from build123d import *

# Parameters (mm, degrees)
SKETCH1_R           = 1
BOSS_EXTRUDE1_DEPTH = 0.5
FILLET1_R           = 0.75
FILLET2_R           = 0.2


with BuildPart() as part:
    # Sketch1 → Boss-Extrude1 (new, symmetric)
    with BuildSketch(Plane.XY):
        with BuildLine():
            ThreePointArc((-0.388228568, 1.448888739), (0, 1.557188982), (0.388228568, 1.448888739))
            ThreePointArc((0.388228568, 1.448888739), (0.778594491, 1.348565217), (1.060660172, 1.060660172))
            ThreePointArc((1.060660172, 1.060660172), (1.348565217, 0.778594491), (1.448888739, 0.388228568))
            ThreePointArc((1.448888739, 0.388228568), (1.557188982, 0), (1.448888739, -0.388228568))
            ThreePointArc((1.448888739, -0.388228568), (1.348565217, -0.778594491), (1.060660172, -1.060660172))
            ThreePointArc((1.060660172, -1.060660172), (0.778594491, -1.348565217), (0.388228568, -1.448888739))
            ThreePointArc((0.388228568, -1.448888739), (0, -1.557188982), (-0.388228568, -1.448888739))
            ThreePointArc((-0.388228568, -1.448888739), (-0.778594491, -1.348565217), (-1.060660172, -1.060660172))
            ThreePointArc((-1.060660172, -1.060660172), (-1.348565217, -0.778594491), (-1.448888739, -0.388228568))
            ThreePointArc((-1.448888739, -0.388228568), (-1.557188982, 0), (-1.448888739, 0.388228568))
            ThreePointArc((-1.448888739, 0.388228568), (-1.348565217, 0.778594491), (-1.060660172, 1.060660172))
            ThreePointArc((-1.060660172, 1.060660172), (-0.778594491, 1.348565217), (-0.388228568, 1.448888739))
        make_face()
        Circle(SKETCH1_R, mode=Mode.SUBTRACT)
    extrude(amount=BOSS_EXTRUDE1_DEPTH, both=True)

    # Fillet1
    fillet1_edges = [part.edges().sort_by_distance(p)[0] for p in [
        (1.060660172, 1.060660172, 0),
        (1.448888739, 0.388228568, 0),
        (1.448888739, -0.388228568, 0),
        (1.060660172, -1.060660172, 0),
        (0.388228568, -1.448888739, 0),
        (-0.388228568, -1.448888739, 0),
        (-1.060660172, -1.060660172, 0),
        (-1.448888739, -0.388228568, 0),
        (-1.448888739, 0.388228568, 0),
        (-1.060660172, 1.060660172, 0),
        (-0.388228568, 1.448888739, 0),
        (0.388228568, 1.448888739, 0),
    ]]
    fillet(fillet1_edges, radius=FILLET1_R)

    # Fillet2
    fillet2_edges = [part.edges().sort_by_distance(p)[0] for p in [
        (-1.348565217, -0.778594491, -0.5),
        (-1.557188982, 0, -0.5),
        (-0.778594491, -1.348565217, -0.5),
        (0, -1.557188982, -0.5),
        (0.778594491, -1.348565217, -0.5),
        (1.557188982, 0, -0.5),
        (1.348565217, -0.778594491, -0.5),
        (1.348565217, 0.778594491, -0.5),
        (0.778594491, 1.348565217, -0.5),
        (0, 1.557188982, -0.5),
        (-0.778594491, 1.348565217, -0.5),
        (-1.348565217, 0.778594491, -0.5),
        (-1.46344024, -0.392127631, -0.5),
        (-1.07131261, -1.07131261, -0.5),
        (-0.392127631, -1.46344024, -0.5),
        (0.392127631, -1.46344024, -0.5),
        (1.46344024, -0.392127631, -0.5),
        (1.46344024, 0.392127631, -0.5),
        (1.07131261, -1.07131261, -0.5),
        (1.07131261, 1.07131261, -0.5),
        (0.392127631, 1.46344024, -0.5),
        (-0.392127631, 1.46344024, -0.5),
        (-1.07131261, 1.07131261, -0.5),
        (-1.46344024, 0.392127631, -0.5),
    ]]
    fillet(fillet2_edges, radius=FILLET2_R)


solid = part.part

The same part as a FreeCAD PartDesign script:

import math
import FreeCAD as App
import Part
import Sketcher
from FreeCAD import Vector
Q = App.Units.Quantity


def edges_at(feature, points):
    """Names of the edges that pass closest to the given points."""
    edges = feature.Shape.Edges
    near = lambda p: min(range(len(edges)), key=lambda i: edges[i].distToShape(Part.Vertex(*p))[0])
    return sorted({f"Edge{near(p) + 1}" for p in points})

doc = App.newDocument("Part")
body = doc.addObject("PartDesign::Body", "Body")

sketch1 = doc.addObject("Sketcher::SketchObject", "Sketch")
body.addObject(sketch1)
sketch1.AttachmentSupport = (doc.XY_Plane, [""])
sketch1.MapMode = "FlatFace"
sketch1.addGeometry(Part.ArcOfCircle(Part.Circle(Vector(0, 0.8, 0), Vector(0, 0, 1), 0.7), math.radians(59), math.radians(121)), False)
sketch1.addGeometry(Part.ArcOfCircle(Part.Circle(Vector(-0.4, 0.7, 0), Vector(0, 0, 1), 0.7), math.radians(89), math.radians(151)), False)
sketch1.addGeometry(Part.ArcOfCircle(Part.Circle(Vector(-0.7, 0.4, 0), Vector(0, 0, 1), 0.7), math.radians(119), math.radians(181)), False)
sketch1.addGeometry(Part.ArcOfCircle(Part.Circle(Vector(-0.8, 0, 0), Vector(0, 0, 1), 0.7), math.radians(149), math.radians(211)), False)
sketch1.addGeometry(Part.ArcOfCircle(Part.Circle(Vector(-0.7, -0.4, 0), Vector(0, 0, 1), 0.7), math.radians(179), math.radians(241)), False)
sketch1.addGeometry(Part.ArcOfCircle(Part.Circle(Vector(-0.4, -0.7, 0), Vector(0, 0, 1), 0.7), math.radians(-151), math.radians(-89)), False)
sketch1.addGeometry(Part.ArcOfCircle(Part.Circle(Vector(0, -0.8, 0), Vector(0, 0, 1), 0.7), math.radians(-121), math.radians(-59)), False)
sketch1.addGeometry(Part.ArcOfCircle(Part.Circle(Vector(0.4, -0.7, 0), Vector(0, 0, 1), 0.7), math.radians(-91), math.radians(-29)), False)
sketch1.addGeometry(Part.ArcOfCircle(Part.Circle(Vector(0.7, -0.4, 0), Vector(0, 0, 1), 0.7), math.radians(-61), math.radians(1)), False)
sketch1.addGeometry(Part.ArcOfCircle(Part.Circle(Vector(0.8, 0, 0), Vector(0, 0, 1), 0.7), math.radians(-31), math.radians(31)), False)
sketch1.addGeometry(Part.ArcOfCircle(Part.Circle(Vector(0.7, 0.4, 0), Vector(0, 0, 1), 0.7), math.radians(-1), math.radians(61)), False)
sketch1.addGeometry(Part.ArcOfCircle(Part.Circle(Vector(0.4, 0.7, 0), Vector(0, 0, 1), 0.7), math.radians(29), math.radians(91)), False)
sketch1.addGeometry(Part.Circle(Vector(0, 0, 0), Vector(0, 0, 1), 1), False)
sketch1.addConstraint(Sketcher.Constraint("Coincident", 0, 2, 1, 1))
sketch1.addConstraint(Sketcher.Constraint("Coincident", 1, 2, 2, 1))
sketch1.addConstraint(Sketcher.Constraint("Coincident", 2, 2, 3, 1))
sketch1.addConstraint(Sketcher.Constraint("Coincident", 3, 2, 4, 1))
sketch1.addConstraint(Sketcher.Constraint("Coincident", 4, 2, 5, 1))
sketch1.addConstraint(Sketcher.Constraint("Coincident", 5, 2, 6, 1))
sketch1.addConstraint(Sketcher.Constraint("Coincident", 6, 2, 7, 1))
sketch1.addConstraint(Sketcher.Constraint("Coincident", 7, 2, 8, 1))
sketch1.addConstraint(Sketcher.Constraint("Coincident", 8, 2, 9, 1))
sketch1.addConstraint(Sketcher.Constraint("Coincident", 9, 2, 10, 1))
sketch1.addConstraint(Sketcher.Constraint("Coincident", 10, 2, 11, 1))
sketch1.addConstraint(Sketcher.Constraint("Coincident", 11, 2, 0, 1))
sketch1.addConstraint(Sketcher.Constraint("Coincident", 12, 3, -1, 1))
sketch1.addConstraint(Sketcher.Constraint("Equal", 0, 1))
sketch1.addConstraint(Sketcher.Constraint("Equal", 1, 2))
sketch1.addConstraint(Sketcher.Constraint("Equal", 2, 3))
sketch1.addConstraint(Sketcher.Constraint("Equal", 3, 4))
sketch1.addConstraint(Sketcher.Constraint("Equal", 4, 5))
sketch1.addConstraint(Sketcher.Constraint("Equal", 5, 6))
sketch1.addConstraint(Sketcher.Constraint("Equal", 6, 7))
sketch1.addConstraint(Sketcher.Constraint("Equal", 7, 8))
sketch1.addConstraint(Sketcher.Constraint("Equal", 8, 9))
sketch1.addConstraint(Sketcher.Constraint("Equal", 9, 10))
sketch1.addConstraint(Sketcher.Constraint("Equal", 10, 11))
sketch1.addConstraint(Sketcher.Constraint("Symmetric", 0, 3, 6, 3, -1, 1))
sketch1.addConstraint(Sketcher.Constraint("Symmetric", 1, 3, 7, 3, -1, 1))
sketch1.addConstraint(Sketcher.Constraint("Symmetric", 2, 3, 8, 3, -1, 1))
sketch1.addConstraint(Sketcher.Constraint("Symmetric", 3, 3, 9, 3, -1, 1))
sketch1.addConstraint(Sketcher.Constraint("Symmetric", 4, 3, 10, 3, -1, 1))
sketch1.addConstraint(Sketcher.Constraint("Symmetric", 5, 3, 11, 3, -1, 1))
sketch1.addConstraint(Sketcher.Constraint("Symmetric", 5, 3, 7, 3, -2))
sketch1.addConstraint(Sketcher.Constraint("Symmetric", 4, 3, 8, 3, -2))
sketch1.addConstraint(Sketcher.Constraint("PointOnObject", 0, 3, -2))
sketch1.addConstraint(Sketcher.Constraint("PointOnObject", 3, 3, -1))
sketch1.addConstraint(Sketcher.Constraint("Diameter", 12, Q("2 mm")))
sketch1.addConstraint(Sketcher.Constraint("Radius", 0, Q("0.75 mm")))
sketch1.addConstraint(Sketcher.Constraint("DistanceY", 0, 3, 0, 2, Q("0.6417 mm")))
sketch1.addConstraint(Sketcher.Constraint("DistanceX", 2, 2, 3, 3, Q("0.6417 mm")))
sketch1.addConstraint(Sketcher.Constraint("DistanceY", -1, 1, 0, 3, Q("0.807189 mm")))
sketch1.addConstraint(Sketcher.Constraint("DistanceX", 3, 3, -1, 1, Q("0.807189 mm")))
sketch1.addConstraint(Sketcher.Constraint("DistanceX", 1, 2, -1, 1, Q("1.06066 mm")))
sketch1.addConstraint(Sketcher.Constraint("DistanceY", -1, 1, 1, 2, Q("1.06066 mm")))
pad1 = doc.addObject("PartDesign::Pad", "Pad")
body.addObject(pad1)
pad1.Profile = sketch1
pad1.Length = 1
pad1.Midplane = True
doc.recompute()

fillet = doc.addObject("PartDesign::Fillet", "Fillet")
body.addObject(fillet)
fillet.Base = (pad1, edges_at(pad1, [
    (1.061, 1.061, 0),
    (1.449, 0.388, 0),
    (1.449, -0.388, 0),
    (1.061, -1.061, 0),
    (0.388, -1.449, 0),
    (-0.388, -1.449, 0),
    (-1.061, -1.061, 0),
    (-1.449, -0.388, 0),
    (-1.449, 0.388, 0),
    (-1.061, 1.061, 0),
    (-0.388, 1.449, 0),
    (0.388, 1.449, 0),
]))
fillet.Radius = 0.75
doc.recompute()

fillet2 = doc.addObject("PartDesign::Fillet", "Fillet001")
body.addObject(fillet2)
fillet2.Base = (fillet, edges_at(fillet, [
    (-1.349, -0.779, -0.5),
    (-1.557, 0, -0.5),
    (-0.779, -1.349, -0.5),
    (0, -1.557, -0.5),
    (0.779, -1.349, -0.5),
    (1.557, 0, -0.5),
    (1.349, -0.779, -0.5),
    (1.349, 0.779, -0.5),
    (0.779, 1.349, -0.5),
    (0, 1.557, -0.5),
    (-0.779, 1.349, -0.5),
    (-1.349, 0.779, -0.5),
    (-1.463, -0.392, -0.5),
    (-1.071, -1.071, -0.5),
    (-0.392, -1.463, -0.5),
    (0.392, -1.463, -0.5),
    (1.463, -0.392, -0.5),
    (1.463, 0.392, -0.5),
    (1.071, -1.071, -0.5),
    (1.071, 1.071, -0.5),
    (0.392, 1.463, -0.5),
    (-0.392, 1.463, -0.5),
    (-1.071, 1.071, -0.5),
    (-1.463, 0.392, -0.5),
]))
fillet2.Radius = 0.2

doc.recompute()
